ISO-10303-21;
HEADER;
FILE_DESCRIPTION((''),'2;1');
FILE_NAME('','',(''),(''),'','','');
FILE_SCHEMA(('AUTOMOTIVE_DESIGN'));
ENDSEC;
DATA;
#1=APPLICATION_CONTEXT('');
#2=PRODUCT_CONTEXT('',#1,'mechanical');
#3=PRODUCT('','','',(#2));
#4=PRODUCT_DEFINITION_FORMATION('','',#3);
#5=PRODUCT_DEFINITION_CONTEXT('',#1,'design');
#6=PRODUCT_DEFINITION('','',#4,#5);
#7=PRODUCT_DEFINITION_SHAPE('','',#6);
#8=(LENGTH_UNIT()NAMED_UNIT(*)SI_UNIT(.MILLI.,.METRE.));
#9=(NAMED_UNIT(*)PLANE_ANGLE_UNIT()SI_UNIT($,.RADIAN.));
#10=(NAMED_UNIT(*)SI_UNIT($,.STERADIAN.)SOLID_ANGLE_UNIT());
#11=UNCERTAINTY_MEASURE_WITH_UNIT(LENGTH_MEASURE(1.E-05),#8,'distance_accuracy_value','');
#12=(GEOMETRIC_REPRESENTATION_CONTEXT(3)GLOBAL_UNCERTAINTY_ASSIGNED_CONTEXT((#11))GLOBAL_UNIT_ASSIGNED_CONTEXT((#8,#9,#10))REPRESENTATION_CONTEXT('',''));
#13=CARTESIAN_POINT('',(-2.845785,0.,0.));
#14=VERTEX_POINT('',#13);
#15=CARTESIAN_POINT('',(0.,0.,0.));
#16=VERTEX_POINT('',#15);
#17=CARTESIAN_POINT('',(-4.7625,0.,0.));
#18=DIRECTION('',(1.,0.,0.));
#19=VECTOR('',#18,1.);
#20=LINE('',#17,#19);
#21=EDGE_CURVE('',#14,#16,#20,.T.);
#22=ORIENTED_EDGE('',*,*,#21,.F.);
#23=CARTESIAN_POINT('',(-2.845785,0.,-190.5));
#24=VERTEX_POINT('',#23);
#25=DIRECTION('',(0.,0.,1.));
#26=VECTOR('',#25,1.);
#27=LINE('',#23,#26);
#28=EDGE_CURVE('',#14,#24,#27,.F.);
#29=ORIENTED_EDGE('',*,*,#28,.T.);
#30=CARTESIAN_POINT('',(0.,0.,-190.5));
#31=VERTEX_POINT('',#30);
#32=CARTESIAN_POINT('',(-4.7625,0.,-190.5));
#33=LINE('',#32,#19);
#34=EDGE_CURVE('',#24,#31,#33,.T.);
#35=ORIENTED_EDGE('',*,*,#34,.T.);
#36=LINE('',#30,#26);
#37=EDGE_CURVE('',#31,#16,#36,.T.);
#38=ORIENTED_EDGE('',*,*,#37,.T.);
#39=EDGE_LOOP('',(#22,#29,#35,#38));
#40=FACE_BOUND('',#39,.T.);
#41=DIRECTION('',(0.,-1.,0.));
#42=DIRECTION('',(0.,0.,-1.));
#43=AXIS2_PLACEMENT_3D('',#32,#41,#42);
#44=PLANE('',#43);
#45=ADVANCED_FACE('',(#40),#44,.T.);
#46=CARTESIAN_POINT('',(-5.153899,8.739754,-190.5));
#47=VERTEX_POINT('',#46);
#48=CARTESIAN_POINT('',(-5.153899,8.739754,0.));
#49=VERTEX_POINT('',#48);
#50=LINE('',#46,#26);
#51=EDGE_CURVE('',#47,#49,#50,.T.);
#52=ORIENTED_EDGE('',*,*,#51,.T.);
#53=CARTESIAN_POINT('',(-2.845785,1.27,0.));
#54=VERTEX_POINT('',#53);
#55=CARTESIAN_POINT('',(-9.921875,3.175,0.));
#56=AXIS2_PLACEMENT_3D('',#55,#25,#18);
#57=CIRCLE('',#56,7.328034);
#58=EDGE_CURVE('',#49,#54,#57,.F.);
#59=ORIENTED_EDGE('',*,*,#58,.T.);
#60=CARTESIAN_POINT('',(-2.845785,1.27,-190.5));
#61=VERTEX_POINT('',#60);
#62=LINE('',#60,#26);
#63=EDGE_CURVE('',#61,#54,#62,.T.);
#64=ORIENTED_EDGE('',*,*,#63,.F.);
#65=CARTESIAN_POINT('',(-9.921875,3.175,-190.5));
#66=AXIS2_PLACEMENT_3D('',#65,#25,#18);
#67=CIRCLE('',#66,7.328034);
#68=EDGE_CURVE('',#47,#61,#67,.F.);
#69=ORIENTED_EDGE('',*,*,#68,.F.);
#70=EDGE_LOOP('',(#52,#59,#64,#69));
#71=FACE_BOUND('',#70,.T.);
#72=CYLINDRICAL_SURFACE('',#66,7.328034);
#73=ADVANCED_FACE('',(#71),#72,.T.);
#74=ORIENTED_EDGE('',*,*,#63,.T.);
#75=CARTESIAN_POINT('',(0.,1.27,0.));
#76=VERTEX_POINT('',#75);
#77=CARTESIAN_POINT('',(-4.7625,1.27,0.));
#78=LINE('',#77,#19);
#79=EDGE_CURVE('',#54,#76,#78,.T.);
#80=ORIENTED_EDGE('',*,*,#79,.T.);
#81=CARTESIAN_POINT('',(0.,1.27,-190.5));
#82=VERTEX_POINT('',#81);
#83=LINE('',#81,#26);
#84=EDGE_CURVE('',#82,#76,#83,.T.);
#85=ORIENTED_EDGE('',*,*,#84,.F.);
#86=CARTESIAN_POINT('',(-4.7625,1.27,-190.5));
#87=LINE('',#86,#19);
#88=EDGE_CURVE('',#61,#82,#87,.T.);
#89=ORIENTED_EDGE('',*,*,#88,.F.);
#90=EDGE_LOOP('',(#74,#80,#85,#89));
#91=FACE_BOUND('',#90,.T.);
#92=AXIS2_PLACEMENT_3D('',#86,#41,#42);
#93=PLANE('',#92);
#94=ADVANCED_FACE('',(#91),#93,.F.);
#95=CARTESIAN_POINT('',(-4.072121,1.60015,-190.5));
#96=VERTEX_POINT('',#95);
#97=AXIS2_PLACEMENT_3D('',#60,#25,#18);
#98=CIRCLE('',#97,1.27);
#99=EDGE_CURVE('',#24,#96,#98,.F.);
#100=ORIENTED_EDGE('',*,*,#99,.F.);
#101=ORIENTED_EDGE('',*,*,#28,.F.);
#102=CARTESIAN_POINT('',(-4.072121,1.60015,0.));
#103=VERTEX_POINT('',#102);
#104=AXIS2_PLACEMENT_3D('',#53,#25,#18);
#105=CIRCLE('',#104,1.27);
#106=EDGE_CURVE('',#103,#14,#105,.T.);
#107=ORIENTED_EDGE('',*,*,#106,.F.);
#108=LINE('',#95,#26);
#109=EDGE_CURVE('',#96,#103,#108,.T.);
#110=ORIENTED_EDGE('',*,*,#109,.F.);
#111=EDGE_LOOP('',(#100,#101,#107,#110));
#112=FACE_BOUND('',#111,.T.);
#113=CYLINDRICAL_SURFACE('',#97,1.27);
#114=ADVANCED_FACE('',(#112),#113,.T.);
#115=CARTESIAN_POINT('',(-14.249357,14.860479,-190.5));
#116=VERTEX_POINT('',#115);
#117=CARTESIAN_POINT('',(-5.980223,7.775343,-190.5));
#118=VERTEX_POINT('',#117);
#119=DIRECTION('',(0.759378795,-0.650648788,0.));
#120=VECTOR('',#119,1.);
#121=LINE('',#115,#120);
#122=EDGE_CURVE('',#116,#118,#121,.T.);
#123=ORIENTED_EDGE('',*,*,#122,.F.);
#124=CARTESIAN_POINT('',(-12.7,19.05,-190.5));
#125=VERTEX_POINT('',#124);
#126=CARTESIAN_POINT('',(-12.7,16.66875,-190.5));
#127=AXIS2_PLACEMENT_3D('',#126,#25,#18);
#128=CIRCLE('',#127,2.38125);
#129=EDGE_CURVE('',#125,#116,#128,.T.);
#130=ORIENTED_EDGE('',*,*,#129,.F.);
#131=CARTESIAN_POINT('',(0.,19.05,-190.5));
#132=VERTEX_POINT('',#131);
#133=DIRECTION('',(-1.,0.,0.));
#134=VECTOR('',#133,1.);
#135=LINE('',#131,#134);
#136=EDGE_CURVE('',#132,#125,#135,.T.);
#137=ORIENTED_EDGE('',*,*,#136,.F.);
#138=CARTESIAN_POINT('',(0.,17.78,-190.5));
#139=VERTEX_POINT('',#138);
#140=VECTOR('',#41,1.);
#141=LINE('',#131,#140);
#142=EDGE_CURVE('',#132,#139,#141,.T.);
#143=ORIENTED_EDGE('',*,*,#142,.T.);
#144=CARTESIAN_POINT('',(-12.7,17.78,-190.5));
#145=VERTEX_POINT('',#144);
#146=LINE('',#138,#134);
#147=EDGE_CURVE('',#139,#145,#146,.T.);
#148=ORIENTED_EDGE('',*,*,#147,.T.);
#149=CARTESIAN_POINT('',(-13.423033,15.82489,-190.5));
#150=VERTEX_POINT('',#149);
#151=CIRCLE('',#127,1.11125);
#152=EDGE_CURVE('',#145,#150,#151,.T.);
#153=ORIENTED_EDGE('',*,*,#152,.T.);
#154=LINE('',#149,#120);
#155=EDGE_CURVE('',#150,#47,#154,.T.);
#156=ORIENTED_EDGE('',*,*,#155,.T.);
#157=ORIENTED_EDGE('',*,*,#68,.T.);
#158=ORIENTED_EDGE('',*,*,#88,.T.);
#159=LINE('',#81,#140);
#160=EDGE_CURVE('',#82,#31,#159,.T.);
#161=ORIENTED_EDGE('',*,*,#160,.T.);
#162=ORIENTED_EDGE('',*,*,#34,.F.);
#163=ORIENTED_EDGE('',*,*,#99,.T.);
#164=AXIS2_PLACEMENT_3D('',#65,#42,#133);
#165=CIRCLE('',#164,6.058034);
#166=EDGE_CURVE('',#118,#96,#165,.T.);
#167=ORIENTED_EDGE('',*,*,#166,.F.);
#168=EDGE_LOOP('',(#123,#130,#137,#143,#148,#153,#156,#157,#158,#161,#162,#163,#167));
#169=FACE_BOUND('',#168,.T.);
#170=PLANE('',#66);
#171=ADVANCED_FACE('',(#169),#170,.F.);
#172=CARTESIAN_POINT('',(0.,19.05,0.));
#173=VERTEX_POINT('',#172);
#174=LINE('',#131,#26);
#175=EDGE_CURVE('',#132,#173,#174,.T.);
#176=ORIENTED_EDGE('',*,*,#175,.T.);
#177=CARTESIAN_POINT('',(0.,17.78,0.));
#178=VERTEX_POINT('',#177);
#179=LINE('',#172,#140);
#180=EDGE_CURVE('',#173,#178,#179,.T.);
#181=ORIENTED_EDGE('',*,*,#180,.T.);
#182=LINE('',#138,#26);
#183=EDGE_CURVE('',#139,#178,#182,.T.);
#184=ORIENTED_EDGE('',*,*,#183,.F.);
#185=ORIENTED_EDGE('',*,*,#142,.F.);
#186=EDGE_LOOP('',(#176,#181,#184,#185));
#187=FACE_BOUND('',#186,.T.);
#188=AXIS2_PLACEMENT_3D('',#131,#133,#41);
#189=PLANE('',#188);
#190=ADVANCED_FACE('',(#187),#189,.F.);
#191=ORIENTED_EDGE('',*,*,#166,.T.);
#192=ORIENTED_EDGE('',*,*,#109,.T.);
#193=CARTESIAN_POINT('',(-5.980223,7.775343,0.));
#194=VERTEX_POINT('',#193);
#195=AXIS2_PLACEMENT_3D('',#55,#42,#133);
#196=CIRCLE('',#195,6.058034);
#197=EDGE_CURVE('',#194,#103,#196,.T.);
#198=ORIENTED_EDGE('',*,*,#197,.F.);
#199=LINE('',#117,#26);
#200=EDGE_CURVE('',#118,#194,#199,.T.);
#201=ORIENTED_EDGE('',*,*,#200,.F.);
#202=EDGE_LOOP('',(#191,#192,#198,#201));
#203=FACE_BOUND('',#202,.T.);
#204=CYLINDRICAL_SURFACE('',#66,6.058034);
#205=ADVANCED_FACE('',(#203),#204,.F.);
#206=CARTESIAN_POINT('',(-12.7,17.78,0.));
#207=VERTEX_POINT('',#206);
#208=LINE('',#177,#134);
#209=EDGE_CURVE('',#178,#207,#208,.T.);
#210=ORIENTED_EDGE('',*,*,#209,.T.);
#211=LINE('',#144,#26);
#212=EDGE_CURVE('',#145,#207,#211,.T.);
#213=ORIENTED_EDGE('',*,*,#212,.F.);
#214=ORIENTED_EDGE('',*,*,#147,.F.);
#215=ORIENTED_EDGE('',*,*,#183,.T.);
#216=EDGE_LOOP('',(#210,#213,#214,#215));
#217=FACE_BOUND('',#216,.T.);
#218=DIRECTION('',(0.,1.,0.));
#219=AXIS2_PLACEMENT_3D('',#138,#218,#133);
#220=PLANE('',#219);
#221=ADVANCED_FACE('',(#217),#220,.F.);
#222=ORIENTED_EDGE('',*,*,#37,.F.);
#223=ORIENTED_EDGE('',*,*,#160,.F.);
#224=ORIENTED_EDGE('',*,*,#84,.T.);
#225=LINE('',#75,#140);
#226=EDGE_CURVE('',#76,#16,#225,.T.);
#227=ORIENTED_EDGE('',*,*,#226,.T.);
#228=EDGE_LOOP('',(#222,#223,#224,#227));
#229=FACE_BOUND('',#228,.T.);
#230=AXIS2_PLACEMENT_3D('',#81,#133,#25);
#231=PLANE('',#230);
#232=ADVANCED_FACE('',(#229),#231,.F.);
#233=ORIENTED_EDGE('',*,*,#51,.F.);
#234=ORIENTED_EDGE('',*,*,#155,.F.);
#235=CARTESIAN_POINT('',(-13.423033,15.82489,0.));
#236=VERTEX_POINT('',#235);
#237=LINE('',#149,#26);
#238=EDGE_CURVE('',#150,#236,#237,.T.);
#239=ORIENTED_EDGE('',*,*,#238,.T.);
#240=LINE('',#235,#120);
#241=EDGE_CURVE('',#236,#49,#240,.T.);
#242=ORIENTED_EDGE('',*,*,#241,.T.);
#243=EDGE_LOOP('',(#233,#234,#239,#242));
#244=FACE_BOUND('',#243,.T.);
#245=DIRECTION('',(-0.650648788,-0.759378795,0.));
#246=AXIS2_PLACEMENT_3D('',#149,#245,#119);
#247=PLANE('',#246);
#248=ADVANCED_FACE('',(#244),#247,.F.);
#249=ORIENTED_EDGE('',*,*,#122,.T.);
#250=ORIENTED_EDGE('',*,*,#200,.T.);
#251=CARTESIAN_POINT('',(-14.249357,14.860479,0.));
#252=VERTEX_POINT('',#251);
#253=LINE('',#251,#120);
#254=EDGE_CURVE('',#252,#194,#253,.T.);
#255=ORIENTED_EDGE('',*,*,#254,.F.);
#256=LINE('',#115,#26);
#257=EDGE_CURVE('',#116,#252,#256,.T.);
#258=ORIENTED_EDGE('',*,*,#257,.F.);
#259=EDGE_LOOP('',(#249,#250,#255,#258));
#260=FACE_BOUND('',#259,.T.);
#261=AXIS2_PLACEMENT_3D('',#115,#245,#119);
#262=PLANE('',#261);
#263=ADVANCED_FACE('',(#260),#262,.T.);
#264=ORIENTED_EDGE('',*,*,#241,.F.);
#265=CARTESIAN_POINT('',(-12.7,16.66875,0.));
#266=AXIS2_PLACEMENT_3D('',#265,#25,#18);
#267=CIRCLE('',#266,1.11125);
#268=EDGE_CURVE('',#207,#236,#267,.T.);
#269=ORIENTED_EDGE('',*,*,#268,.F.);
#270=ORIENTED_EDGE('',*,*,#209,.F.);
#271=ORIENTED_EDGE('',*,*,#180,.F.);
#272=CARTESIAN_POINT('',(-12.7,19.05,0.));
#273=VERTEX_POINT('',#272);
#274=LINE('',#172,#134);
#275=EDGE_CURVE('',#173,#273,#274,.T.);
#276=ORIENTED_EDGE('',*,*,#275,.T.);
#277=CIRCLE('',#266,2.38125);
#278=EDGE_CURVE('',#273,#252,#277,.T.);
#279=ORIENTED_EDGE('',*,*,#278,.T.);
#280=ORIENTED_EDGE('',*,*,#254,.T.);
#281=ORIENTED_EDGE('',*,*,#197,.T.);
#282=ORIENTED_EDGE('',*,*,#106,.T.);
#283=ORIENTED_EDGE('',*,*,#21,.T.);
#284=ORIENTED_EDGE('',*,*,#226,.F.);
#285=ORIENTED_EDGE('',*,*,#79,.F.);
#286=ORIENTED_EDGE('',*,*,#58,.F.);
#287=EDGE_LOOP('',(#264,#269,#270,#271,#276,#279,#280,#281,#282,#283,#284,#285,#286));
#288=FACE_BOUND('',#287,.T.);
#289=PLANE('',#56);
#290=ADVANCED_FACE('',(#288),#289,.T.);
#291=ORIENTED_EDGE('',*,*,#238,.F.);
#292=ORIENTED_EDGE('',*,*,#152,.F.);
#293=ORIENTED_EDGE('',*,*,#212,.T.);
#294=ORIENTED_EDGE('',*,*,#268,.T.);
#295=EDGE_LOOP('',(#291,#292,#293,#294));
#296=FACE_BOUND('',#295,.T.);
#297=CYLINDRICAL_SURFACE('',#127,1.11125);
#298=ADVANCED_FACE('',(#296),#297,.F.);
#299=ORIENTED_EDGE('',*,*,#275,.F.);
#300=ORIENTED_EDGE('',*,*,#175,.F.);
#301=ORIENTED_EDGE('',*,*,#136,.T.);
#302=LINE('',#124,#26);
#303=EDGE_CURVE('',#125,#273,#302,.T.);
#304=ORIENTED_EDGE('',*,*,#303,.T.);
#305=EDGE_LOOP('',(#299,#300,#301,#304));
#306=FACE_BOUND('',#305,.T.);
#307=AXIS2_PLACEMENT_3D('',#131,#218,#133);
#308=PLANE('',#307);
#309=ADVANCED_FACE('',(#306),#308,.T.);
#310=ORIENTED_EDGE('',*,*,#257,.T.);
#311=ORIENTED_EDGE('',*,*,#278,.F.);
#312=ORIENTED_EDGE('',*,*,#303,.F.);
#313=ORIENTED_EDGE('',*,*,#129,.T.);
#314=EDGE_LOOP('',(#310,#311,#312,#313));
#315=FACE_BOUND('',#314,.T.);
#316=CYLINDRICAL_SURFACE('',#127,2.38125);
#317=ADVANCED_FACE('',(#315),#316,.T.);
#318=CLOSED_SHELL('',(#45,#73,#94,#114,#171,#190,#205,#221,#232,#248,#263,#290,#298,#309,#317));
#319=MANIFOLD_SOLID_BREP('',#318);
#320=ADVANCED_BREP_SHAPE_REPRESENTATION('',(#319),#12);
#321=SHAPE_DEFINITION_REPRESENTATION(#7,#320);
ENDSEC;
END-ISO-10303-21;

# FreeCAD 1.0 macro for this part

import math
import FreeCAD as App
import Part
import Sketcher
Q = App.Units.Quantity


def edges_at(feature, points):
    """Names of the edges that pass closest to the given points."""
    edges = feature.Shape.Edges
    near = lambda p: min(range(len(edges)), key=lambda i: edges[i].distToShape(Part.Vertex(*p))[0])
    return sorted({f"Edge{near(p) + 1}" for p in points})

doc = App.newDocument("Part")
body = doc.addObject("PartDesign::Body", "Body")

# Sketch on XY plane
sketch1 = body.newObject("Sketcher::SketchObject", "Sketch")
sketch1.AttachmentSupport = (doc.getObject("XY_Plane"), [""])
sketch1.MapMode = "FlatFace"
sketch1.addGeometry(Part.LineSegment(App.Vector(0, 19.1, 0), App.Vector(-12.7, 19.1, 0)), False)
sketch1.addGeometry(Part.ArcOfCircle(Part.Circle(App.Vector(-12.7, 16.7, 0), App.Vector(0, 0, 1), 2.4), math.radians(90), math.radians(229)), False)
sketch1.addGeometry(Part.LineSegment(App.Vector(-14.2, 14.9, 0), App.Vector(-6, 7.8, 0)), False)
sketch1.addGeometry(Part.ArcOfCircle(Part.Circle(App.Vector(-9.9, 3.2, 0), App.Vector(0, 0, 1), 6.1), math.radians(-32), math.radians(49)), False)
sketch1.addGeometry(Part.LineSegment(App.Vector(-4.8, 0, 0), App.Vector(0, 0, 0)), False)
sketch1.addGeometry(Part.LineSegment(App.Vector(0, 0, 0), App.Vector(0, 1.3, 0)), False)
sketch1.addGeometry(Part.LineSegment(App.Vector(0, 1.3, 0), App.Vector(-2.8, 1.3, 0)), False)
sketch1.addGeometry(Part.ArcOfCircle(Part.Circle(App.Vector(-9.9, 3.2, 0), App.Vector(0, 0, 1), 7.3), math.radians(-15), math.radians(49)), False)
sketch1.addGeometry(Part.LineSegment(App.Vector(-5.2, 8.7, 0), App.Vector(-13.4, 15.8, 0)), False)
sketch1.addGeometry(Part.ArcOfCircle(Part.Circle(App.Vector(-12.7, 16.7, 0), App.Vector(0, 0, 1), 1.1), math.radians(90), math.radians(229)), False)
sketch1.addGeometry(Part.LineSegment(App.Vector(-12.7, 17.8, 0), App.Vector(0, 17.8, 0)), False)
sketch1.addGeometry(Part.LineSegment(App.Vector(0, 17.8, 0), App.Vector(0, 19.1, 0)), False)
sketch1.addConstraint(Sketcher.Constraint("Tangent", 0, 2, 1, 1))
sketch1.addConstraint(Sketcher.Constraint("Tangent", 1, 2, 2, 1))
sketch1.addConstraint(Sketcher.Constraint("Tangent", 2, 2, 3, 2))
sketch1.addConstraint(Sketcher.Constraint("Coincident", 3, 1, 4, 1))
sketch1.addConstraint(Sketcher.Constraint("Coincident", 4, 2, 5, 1))
sketch1.addConstraint(Sketcher.Constraint("Coincident", 5, 2, 6, 1))
sketch1.addConstraint(Sketcher.Constraint("Coincident", 6, 2, 7, 1))
sketch1.addConstraint(Sketcher.Constraint("Tangent", 7, 2, 8, 1))
sketch1.addConstraint(Sketcher.Constraint("Tangent", 8, 2, 9, 2))
sketch1.addConstraint(Sketcher.Constraint("Tangent", 9, 1, 10, 1))
sketch1.addConstraint(Sketcher.Constraint("Coincident", 10, 2, 11, 1))
sketch1.addConstraint(Sketcher.Constraint("Coincident", 11, 2, 0, 1))
sketch1.addConstraint(Sketcher.Constraint("Horizontal", 0))
sketch1.addConstraint(Sketcher.Constraint("Horizontal", 4))
sketch1.addConstraint(Sketcher.Constraint("Vertical", 5))
sketch1.addConstraint(Sketcher.Constraint("Horizontal", 6))
sketch1.addConstraint(Sketcher.Constraint("Horizontal", 10))
sketch1.addConstraint(Sketcher.Constraint("Vertical", 11))
sketch1.addConstraint(Sketcher.Constraint("Coincident", 4, 2, -1, 1))
sketch1.addConstraint(Sketcher.Constraint("Coincident", 7, 3, 3, 3))
sketch1.addConstraint(Sketcher.Constraint("Coincident", 9, 3, 1, 3))
sketch1.addConstraint(Sketcher.Constraint("PointOnObject", 10, 2, -2))
sketch1.addConstraint(Sketcher.Constraint("Parallel", 2, 8))
sketch1.addConstraint(Sketcher.Constraint("Equal", 5, 11))
sketch1.addConstraint(Sketcher.Constraint("DistanceX", 0, 2, 0, 1, Q("0.5 in")))
sketch1.addConstraint(Sketcher.Constraint("Radius", 1, Q("0.09375 in")))
sketch1.addConstraint(Sketcher.Constraint("DistanceY", 5, 1, 5, 2, Q("0.05 in")))
sketch1.addConstraint(Sketcher.Constraint("DistanceY", -1, 1, 9, 1, Q("0.7 in")))
sketch1.addConstraint(Sketcher.Constraint("DistanceX", 4, 1, 4, 2, Q("0.1875 in")))
sketch1.addConstraint(Sketcher.Constraint("DistanceX", 3, 3, -1, 1, Q("0.390625 in")))
sketch1.addConstraint(Sketcher.Constraint("DistanceY", -1, 1, 3, 3, Q("0.125 in")))
pad1 = body.newObject("PartDesign::Pad", "Pad")
pad1.Profile = sketch1
pad1.Length = Q("7.5 in")
pad1.Reversed = True
doc.recompute()

fillet = body.newObject("PartDesign::Fillet", "Fillet")
fillet.Base = (pad1, edges_at(pad1, [(-4.763, 0, -95.25)]))
fillet.Radius = Q("0.05 in")

doc.recompute()
